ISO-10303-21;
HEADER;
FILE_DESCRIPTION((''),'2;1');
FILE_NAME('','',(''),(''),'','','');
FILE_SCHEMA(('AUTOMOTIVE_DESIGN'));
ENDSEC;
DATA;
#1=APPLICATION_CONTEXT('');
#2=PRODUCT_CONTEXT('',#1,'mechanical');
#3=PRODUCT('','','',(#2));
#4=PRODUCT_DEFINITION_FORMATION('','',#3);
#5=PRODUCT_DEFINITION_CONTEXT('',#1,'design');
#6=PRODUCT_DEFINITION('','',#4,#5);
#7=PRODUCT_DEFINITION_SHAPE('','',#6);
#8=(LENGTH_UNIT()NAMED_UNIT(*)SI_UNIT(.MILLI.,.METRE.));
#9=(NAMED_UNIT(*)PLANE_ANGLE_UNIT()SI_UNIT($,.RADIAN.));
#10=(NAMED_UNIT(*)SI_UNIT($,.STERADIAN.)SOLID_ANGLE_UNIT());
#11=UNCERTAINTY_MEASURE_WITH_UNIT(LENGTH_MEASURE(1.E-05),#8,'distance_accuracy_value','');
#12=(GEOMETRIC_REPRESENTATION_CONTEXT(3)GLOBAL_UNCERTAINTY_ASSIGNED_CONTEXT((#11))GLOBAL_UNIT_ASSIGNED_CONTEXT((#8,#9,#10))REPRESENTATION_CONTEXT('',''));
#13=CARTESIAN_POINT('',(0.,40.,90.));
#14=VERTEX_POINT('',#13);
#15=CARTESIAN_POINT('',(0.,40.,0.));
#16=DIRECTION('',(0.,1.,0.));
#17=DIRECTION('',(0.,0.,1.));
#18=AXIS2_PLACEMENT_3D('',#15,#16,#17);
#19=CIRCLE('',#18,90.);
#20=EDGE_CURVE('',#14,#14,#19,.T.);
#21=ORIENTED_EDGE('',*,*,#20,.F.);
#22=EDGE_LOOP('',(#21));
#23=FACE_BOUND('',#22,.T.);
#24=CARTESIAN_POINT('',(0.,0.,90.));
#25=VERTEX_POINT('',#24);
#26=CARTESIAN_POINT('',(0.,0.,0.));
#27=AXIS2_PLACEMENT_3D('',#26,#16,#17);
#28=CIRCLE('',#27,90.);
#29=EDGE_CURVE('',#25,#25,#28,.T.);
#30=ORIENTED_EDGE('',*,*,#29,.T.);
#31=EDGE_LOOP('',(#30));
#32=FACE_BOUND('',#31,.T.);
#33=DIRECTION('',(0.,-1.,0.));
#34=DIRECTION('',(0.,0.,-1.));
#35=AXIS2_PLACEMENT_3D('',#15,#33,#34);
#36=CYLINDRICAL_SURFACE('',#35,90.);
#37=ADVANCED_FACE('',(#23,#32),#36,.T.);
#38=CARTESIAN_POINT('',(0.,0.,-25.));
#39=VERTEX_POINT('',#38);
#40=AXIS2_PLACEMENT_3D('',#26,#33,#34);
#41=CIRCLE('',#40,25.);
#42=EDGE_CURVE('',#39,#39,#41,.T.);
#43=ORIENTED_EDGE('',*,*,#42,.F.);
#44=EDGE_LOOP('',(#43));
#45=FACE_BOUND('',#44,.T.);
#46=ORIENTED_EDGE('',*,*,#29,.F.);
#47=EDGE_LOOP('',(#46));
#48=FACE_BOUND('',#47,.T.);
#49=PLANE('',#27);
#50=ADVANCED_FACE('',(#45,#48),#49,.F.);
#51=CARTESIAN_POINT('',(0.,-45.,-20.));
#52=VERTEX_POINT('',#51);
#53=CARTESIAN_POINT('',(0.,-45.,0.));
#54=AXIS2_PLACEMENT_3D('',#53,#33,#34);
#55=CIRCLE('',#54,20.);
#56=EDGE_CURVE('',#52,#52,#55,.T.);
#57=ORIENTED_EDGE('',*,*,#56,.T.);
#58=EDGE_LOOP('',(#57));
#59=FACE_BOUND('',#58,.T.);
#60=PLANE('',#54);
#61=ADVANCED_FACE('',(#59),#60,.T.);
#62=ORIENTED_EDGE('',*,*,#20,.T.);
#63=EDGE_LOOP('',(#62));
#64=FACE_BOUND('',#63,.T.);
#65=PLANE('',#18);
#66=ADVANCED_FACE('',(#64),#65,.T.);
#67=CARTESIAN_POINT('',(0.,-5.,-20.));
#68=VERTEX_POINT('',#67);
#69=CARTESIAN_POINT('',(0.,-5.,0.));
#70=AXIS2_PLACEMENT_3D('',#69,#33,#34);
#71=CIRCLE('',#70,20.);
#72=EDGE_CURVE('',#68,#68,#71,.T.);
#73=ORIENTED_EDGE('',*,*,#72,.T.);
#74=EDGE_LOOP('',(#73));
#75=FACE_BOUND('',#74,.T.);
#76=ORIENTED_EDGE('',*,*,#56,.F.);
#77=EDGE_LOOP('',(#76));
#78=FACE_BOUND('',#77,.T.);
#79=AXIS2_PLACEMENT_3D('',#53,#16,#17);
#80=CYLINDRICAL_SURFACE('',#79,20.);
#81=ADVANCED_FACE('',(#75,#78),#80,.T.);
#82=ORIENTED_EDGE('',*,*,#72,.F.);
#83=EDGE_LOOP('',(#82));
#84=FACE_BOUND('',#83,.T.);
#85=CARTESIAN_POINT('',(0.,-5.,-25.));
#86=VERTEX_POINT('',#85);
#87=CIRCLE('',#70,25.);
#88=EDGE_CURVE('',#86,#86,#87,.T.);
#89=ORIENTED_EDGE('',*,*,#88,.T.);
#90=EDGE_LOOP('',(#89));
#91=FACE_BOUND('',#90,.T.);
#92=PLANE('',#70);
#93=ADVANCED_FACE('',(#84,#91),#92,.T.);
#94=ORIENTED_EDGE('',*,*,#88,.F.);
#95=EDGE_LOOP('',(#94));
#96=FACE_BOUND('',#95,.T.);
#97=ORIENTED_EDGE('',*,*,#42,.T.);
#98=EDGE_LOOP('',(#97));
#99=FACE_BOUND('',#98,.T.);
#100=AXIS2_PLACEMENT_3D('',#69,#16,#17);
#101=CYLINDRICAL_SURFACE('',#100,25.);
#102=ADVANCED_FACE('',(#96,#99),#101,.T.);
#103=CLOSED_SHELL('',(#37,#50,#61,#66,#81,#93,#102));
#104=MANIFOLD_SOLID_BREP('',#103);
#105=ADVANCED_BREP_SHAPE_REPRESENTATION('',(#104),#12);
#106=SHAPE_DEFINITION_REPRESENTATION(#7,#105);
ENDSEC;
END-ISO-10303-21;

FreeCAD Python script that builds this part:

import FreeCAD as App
import Part
import Sketcher

V = App.Vector
Q = App.Units.Quantity

doc = App.newDocument("Part")
body = doc.addObject("PartDesign::Body", "Body")

sketch1 = body.newObject("Sketcher::SketchObject", "Sketch")
sketch1.AttachmentSupport = (doc.getObject("XZ_Plane"), [""])
sketch1.MapMode = "FlatFace"
sketch1.addGeometry(Part.Circle(V(0, 0, 0), V(0, 0, 1), 90), False)
sketch1.addConstraint(Sketcher.Constraint("Coincident", 0, 3, -1, 1))
sketch1.addConstraint(Sketcher.Constraint("Diameter", 0, Q("180 mm")))
pad1 = body.newObject("PartDesign::Pad", "Pad")
pad1.Profile = sketch1
pad1.Length = 40
pad1.Reversed = True

sketch2 = body.newObject("Sketcher::SketchObject", "Sketch001")
sketch2.AttachmentSupport = (doc.getObject("XZ_Plane"), [""])
sketch2.MapMode = "FlatFace"
sketch2.addGeometry(Part.Circle(V(0, 0, 0), V(0, 0, 1), 25), False)
sketch2.addConstraint(Sketcher.Constraint("Coincident", 0, 3, -1, 1))
sketch2.addConstraint(Sketcher.Constraint("Diameter", 0, Q("50 mm")))
pad2 = body.newObject("PartDesign::Pad", "Pad001")
pad2.Profile = sketch2
pad2.Length = 5

sketch3 = body.newObject("Sketcher::SketchObject", "Sketch002")
sketch3.AttachmentSupport = (doc.getObject("XZ_Plane"), [""])
sketch3.MapMode = "FlatFace"
sketch3.AttachmentOffset = App.Placement(V(0, 0, 5), App.Rotation())
sketch3.addGeometry(Part.Circle(V(0, 0, 0), V(0, 0, 1), 20), False)
sketch3.addConstraint(Sketcher.Constraint("Coincident", 0, 3, -1, 1))
sketch3.addConstraint(Sketcher.Constraint("Diameter", 0, Q("40 mm")))
pad3 = body.newObject("PartDesign::Pad", "Pad002")
pad3.Profile = sketch3
pad3.Length = 40

doc.recompute()
